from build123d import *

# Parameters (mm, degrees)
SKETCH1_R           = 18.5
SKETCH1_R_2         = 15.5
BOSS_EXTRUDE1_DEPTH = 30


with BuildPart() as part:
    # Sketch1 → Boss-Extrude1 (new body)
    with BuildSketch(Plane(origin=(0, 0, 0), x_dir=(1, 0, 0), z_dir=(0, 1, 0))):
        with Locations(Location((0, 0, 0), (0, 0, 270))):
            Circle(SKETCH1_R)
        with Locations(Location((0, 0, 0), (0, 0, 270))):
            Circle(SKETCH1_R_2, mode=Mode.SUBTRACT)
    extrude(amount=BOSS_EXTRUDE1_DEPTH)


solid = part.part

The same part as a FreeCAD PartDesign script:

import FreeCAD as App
import Part
import Sketcher
from FreeCAD import Vector

doc = App.newDocument("Part")
body = doc.addObject("PartDesign::Body", "Body")

# Sketch on XZ plane
sketch1 = doc.addObject("Sketcher::SketchObject", "Sketch")
body.addObject(sketch1)
sketch1.AttachmentSupport = (doc.XZ_Plane, [""])
sketch1.MapMode = "FlatFace"
sketch1.addGeometry([
    Part.Circle(Vector(0, 0, 0), Vector(0, 0, 1), 18),
    Part.Circle(Vector(0, 0, 0), Vector(0, 0, 1), 16),
], False)
sketch1.addConstraint([
    Sketcher.Constraint("Coincident", 0, 3, -1, 1),
    Sketcher.Constraint("Coincident", 1, 3, -1, 1),
    Sketcher.Constraint("Diameter", 0, 37.0),
    Sketcher.Constraint("Diameter", 1, 31.0),
])
pad1 = doc.addObject("PartDesign::Pad", "Pad")
body.addObject(pad1)
pad1.Profile = sketch1
pad1.Length = 30
pad1.Reversed = True

doc.recompute()
